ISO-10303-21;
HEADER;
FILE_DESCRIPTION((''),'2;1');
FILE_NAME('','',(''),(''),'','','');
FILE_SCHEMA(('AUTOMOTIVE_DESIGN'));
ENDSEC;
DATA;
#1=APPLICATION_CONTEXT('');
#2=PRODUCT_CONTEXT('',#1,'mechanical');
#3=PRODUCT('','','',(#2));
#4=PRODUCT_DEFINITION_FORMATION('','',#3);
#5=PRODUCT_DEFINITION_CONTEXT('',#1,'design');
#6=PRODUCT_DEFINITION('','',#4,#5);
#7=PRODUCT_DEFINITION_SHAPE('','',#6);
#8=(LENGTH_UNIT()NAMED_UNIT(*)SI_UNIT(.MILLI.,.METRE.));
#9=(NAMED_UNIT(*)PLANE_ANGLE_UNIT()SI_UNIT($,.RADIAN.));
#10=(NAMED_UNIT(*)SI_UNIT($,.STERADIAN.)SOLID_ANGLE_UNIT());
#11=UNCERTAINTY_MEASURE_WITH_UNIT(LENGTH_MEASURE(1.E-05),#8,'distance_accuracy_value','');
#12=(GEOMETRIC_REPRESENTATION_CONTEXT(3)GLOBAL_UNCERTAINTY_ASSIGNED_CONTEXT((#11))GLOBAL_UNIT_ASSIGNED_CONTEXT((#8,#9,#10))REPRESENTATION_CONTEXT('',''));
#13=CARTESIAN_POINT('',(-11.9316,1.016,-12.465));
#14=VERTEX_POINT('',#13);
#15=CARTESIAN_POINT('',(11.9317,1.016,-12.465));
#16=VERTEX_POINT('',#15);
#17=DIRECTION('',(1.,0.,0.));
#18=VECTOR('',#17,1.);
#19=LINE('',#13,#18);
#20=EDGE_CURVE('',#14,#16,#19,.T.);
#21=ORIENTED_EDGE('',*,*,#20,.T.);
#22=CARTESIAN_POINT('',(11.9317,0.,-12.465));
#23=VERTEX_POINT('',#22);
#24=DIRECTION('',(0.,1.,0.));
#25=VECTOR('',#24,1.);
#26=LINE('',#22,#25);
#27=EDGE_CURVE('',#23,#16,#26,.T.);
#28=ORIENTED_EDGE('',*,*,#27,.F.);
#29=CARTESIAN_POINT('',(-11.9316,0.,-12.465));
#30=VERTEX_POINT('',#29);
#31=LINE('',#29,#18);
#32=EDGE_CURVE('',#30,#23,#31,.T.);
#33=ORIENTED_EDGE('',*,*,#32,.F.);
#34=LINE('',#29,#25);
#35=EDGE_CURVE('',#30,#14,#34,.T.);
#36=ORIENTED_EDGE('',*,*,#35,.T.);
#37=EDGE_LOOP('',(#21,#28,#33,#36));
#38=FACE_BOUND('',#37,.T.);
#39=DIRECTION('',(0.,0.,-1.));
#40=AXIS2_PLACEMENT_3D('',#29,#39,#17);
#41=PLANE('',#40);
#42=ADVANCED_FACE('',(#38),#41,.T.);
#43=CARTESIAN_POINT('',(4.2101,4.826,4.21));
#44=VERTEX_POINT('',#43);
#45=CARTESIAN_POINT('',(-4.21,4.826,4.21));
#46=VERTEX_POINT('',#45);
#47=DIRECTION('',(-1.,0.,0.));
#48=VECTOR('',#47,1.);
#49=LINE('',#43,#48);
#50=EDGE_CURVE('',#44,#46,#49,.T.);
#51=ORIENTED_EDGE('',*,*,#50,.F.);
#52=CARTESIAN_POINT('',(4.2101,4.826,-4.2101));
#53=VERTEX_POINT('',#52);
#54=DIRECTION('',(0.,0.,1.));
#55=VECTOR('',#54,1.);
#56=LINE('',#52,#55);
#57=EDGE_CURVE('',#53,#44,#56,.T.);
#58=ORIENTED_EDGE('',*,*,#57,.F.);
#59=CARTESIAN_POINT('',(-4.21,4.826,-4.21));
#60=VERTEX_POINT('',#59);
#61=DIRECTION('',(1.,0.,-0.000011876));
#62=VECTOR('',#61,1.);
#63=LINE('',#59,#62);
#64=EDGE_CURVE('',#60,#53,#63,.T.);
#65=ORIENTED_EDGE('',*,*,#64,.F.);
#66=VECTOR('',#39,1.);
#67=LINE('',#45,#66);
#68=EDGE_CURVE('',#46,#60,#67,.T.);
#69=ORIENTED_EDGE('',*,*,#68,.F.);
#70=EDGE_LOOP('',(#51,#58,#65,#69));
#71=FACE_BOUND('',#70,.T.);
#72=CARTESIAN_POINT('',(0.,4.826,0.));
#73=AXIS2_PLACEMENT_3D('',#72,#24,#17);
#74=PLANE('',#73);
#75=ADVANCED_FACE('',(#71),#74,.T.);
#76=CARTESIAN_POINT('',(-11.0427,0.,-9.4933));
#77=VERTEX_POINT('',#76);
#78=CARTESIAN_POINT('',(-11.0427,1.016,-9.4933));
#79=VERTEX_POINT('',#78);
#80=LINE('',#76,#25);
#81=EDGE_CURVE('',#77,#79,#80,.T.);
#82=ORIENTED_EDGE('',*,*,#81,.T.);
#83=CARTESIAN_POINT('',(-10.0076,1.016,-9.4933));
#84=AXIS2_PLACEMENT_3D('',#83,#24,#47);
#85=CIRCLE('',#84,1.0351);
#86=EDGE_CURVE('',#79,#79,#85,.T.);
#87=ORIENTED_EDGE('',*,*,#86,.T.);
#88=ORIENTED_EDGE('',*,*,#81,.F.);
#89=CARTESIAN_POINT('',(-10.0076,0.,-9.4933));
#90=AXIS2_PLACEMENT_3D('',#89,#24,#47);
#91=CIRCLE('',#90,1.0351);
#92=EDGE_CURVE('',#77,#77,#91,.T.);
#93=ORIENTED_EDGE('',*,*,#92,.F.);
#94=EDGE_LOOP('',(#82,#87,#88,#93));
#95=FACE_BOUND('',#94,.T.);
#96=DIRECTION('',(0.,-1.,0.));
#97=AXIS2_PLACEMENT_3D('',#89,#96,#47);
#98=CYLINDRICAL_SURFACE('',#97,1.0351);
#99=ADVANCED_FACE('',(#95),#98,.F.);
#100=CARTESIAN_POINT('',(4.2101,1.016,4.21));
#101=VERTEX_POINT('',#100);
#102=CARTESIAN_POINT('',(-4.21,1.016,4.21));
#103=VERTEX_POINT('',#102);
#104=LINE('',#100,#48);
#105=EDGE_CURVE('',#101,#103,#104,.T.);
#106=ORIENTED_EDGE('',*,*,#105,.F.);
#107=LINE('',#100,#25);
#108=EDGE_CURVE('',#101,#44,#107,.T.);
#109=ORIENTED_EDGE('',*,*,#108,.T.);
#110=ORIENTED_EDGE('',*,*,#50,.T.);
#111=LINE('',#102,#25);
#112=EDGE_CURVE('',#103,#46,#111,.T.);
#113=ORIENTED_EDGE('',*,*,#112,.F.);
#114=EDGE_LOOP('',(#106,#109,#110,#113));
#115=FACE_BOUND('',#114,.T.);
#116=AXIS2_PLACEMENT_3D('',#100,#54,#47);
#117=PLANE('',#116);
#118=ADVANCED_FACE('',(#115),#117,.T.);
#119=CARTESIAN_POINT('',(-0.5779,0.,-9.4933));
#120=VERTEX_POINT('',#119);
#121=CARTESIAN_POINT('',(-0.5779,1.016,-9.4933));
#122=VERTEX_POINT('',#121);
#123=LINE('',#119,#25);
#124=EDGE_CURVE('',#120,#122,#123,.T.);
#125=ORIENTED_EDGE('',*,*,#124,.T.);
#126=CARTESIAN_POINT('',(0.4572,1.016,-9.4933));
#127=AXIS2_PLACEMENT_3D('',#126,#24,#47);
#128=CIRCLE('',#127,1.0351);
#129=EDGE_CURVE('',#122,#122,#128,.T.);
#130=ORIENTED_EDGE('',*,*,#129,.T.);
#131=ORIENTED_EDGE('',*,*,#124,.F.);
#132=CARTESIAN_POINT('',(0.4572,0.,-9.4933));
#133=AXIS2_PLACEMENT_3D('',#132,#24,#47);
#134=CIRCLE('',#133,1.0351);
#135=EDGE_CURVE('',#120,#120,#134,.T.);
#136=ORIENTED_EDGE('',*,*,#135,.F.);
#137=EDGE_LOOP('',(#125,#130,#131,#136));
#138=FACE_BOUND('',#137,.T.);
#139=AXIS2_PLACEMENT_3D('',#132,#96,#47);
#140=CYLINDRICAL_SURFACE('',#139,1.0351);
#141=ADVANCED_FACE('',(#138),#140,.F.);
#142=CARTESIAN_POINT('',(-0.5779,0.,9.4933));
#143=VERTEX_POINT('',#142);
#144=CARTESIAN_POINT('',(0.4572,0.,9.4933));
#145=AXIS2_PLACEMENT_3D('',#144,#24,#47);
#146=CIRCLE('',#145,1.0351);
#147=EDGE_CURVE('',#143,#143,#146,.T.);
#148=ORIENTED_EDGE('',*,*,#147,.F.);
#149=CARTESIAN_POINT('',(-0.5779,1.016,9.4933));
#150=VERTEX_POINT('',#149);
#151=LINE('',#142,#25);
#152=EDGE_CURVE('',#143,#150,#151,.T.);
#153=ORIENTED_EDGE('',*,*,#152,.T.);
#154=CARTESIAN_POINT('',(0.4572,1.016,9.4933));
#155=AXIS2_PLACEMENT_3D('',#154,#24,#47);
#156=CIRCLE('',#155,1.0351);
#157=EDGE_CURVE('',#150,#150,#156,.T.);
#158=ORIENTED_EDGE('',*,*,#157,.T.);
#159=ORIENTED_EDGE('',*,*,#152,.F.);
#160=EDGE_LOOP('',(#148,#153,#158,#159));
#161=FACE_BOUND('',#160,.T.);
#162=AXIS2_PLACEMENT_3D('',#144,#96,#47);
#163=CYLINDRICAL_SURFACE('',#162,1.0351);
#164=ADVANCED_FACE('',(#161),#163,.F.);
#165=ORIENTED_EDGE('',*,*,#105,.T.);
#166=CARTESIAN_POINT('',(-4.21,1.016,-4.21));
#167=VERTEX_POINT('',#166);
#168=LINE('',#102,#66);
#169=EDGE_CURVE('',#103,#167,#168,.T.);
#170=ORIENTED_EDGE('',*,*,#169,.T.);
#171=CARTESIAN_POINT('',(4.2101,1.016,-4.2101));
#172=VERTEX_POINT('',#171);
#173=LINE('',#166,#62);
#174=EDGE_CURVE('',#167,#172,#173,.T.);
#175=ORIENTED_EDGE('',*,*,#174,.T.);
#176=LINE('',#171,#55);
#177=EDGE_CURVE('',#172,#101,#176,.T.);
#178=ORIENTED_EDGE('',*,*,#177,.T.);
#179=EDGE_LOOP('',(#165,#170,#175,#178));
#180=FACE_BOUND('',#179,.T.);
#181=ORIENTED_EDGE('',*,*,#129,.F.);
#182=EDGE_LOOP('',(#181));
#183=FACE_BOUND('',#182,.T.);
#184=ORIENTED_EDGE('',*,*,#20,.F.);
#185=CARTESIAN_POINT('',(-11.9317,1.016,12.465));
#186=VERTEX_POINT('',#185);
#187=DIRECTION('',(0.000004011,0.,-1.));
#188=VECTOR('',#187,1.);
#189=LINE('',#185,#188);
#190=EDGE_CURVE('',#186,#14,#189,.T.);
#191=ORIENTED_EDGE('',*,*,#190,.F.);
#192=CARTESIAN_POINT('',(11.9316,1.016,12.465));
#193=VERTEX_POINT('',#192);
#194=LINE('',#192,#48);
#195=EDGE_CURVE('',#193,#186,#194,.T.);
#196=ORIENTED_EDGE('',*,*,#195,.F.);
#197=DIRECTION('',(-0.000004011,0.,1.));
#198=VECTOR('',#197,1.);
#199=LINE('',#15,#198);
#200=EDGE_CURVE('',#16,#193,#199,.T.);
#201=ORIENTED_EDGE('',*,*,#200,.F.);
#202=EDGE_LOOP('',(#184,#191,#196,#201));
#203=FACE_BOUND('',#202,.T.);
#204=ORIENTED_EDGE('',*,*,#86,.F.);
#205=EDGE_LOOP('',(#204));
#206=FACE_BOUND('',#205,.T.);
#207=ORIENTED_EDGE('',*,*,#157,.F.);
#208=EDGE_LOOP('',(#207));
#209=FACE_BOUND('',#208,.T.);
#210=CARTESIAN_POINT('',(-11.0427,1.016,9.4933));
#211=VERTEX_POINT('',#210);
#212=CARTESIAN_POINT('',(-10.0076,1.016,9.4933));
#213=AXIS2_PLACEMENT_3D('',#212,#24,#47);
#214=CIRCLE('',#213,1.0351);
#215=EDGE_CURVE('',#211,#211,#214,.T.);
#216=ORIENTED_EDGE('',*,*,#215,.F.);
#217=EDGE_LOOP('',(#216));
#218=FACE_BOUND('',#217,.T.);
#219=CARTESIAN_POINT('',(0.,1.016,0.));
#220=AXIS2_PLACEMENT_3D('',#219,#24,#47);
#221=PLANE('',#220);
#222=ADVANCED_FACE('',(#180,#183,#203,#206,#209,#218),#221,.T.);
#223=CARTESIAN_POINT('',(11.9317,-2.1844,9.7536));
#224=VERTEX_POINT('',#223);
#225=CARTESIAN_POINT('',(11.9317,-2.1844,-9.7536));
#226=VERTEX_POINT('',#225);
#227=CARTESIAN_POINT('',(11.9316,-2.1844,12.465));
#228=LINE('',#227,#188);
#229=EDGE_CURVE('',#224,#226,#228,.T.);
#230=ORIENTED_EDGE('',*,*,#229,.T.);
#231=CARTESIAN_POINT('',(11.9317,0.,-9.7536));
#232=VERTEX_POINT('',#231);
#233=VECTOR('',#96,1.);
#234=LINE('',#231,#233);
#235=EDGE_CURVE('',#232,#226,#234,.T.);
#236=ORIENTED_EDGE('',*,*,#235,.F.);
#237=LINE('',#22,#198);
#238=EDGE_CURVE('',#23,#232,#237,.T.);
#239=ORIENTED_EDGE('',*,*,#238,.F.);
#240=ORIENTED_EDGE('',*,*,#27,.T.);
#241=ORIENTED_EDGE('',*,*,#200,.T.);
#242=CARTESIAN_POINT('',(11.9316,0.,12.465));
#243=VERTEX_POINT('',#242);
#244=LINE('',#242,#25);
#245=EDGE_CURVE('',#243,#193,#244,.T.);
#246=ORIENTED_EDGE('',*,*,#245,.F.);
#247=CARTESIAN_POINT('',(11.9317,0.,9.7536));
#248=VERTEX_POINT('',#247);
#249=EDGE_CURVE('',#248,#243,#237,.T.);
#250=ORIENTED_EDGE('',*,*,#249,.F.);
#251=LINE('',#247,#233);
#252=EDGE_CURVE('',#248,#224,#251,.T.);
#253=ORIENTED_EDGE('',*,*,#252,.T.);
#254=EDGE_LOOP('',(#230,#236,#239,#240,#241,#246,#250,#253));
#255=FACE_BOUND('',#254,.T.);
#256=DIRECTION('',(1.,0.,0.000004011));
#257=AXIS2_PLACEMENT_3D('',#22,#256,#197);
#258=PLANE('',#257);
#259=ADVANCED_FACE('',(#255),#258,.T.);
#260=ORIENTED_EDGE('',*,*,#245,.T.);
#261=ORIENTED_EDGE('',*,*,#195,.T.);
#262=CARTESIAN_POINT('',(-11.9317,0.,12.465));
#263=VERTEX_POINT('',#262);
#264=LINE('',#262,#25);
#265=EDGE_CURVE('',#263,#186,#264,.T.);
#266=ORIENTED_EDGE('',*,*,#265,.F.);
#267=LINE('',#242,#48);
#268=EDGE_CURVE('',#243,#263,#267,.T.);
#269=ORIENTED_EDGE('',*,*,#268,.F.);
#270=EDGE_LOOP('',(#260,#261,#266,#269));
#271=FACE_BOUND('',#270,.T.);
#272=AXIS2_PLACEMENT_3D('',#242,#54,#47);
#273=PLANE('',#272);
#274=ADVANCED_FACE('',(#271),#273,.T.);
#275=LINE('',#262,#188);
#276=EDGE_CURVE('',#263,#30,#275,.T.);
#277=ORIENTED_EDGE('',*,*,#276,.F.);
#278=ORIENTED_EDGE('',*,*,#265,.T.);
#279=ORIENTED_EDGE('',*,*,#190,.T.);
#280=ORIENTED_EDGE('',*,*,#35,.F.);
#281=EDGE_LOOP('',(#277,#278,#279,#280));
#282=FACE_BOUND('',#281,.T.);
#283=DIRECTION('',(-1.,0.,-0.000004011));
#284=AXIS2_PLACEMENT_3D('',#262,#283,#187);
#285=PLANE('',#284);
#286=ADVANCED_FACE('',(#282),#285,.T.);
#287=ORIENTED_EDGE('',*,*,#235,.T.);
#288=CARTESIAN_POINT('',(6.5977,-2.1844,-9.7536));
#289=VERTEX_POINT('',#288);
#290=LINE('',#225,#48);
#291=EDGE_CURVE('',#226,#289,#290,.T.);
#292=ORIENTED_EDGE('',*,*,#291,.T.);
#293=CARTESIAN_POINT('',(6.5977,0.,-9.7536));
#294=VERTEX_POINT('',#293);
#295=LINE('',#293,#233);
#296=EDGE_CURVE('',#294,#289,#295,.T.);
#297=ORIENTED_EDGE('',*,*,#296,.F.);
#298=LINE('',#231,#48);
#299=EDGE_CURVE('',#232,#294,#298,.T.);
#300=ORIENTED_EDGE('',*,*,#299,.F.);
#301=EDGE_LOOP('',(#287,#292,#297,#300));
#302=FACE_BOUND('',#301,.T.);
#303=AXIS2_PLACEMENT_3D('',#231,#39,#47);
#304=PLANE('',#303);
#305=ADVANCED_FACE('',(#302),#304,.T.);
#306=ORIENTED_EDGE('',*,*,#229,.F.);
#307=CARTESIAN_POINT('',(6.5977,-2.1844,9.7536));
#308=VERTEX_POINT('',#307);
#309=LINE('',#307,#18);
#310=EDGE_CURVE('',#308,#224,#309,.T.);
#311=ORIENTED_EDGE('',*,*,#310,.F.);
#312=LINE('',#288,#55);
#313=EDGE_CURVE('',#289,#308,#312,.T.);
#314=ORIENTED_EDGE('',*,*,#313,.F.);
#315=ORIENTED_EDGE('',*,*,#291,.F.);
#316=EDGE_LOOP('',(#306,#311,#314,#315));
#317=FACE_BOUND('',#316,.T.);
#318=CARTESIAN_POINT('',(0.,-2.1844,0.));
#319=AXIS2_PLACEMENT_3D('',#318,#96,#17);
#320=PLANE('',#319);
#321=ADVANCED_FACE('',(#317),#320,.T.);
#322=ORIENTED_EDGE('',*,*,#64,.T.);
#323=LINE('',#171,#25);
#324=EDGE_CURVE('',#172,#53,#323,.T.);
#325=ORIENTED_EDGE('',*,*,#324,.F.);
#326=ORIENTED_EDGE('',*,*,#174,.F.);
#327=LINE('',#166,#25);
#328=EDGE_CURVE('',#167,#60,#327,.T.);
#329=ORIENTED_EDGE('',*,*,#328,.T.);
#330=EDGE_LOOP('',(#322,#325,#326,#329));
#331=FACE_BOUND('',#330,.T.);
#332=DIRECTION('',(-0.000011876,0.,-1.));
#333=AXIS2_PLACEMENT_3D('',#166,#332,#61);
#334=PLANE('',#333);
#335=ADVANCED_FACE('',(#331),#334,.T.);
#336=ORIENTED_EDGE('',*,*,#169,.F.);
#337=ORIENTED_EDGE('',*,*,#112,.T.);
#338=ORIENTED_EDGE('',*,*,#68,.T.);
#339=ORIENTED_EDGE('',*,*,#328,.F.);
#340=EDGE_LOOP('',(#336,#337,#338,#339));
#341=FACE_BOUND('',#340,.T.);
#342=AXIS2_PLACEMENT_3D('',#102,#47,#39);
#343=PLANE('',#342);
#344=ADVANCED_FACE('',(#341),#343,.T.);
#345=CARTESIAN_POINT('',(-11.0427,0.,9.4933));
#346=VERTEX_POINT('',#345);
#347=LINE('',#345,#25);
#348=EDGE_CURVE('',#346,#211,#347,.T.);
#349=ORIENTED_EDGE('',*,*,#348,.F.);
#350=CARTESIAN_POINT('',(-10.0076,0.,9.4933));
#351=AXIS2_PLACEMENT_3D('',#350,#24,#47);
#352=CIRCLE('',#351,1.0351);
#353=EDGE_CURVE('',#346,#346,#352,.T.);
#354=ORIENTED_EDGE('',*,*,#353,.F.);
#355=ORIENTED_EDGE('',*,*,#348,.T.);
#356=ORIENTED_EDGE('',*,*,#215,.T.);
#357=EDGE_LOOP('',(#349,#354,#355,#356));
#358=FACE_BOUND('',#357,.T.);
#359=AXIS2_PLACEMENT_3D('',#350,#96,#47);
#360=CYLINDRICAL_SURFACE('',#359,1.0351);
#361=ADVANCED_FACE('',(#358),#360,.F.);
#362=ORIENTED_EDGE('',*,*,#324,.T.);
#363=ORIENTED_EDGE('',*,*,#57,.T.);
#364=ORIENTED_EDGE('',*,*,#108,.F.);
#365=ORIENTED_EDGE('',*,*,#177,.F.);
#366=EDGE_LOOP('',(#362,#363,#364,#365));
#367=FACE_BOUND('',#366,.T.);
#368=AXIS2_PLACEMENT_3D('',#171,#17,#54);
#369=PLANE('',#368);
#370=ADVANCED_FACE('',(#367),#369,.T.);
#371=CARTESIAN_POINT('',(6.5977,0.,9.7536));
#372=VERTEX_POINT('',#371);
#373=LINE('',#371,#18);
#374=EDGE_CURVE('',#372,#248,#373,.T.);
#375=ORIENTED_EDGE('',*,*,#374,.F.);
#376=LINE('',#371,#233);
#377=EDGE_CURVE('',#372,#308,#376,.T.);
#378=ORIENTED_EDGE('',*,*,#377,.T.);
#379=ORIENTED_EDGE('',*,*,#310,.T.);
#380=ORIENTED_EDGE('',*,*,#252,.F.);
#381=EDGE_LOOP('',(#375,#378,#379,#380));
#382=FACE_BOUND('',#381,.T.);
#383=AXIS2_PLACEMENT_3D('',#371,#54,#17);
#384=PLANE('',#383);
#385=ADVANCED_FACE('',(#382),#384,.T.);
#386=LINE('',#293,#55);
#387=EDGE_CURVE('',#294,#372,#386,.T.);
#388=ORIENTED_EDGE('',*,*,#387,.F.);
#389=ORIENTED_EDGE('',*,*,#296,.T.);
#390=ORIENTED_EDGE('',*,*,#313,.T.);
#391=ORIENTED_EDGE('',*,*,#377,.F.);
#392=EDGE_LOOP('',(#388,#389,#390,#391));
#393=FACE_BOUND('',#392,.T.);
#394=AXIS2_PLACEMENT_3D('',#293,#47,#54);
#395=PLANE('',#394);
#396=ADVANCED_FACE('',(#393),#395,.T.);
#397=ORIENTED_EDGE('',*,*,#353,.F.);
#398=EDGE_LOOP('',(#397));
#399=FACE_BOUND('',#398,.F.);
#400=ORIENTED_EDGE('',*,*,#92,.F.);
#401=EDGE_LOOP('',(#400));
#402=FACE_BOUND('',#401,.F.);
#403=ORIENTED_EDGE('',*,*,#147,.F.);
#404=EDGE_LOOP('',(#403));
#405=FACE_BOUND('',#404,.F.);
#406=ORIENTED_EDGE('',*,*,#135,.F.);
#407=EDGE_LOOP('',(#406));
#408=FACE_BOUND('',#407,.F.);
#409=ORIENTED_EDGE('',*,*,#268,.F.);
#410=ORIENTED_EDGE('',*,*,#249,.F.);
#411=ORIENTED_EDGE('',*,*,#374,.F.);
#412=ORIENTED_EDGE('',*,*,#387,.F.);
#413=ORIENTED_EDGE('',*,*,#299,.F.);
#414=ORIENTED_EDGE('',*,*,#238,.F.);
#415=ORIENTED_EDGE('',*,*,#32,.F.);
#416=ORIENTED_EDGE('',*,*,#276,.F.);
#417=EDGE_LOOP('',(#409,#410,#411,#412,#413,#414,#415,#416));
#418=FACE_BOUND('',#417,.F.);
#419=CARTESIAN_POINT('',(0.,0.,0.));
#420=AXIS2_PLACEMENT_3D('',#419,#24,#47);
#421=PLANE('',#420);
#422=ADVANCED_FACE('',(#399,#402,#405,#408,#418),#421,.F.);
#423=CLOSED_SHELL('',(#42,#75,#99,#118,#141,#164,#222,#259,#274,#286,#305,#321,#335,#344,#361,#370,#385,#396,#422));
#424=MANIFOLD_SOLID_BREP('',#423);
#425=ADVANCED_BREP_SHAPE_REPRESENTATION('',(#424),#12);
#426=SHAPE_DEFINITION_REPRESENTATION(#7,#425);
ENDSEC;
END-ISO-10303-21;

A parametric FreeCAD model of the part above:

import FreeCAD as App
import Part
import Sketcher

V = App.Vector
Q = App.Units.Quantity

doc = App.newDocument("Part")
body = doc.addObject("PartDesign::Body", "Body")

sketch1 = body.newObject("Sketcher::SketchObject", "Sketch")
sketch1.AttachmentSupport = (doc.getObject("XZ_Plane"), [""])
sketch1.MapMode = "FlatFace"
sketch1.addGeometry(Part.LineSegment(V(-11.9, 12.5, 0), V(11.9, 12.5, 0)), False)
sketch1.addGeometry(Part.LineSegment(V(11.9, 12.5, 0), V(11.9, -12.5, 0)), False)
sketch1.addGeometry(Part.LineSegment(V(11.9, -12.5, 0), V(-11.9, -12.5, 0)), False)
sketch1.addGeometry(Part.LineSegment(V(-11.9, -12.5, 0), V(-11.9, 12.5, 0)), False)
sketch1.addGeometry(Part.Circle(V(0.5, -9.5, 0), V(0, 0, 1), 1), False)
sketch1.addGeometry(Part.Circle(V(-10, -9.5, 0), V(0, 0, 1), 1), False)
sketch1.addGeometry(Part.Circle(V(0.5, 9.5, 0), V(0, 0, 1), 1), False)
sketch1.addGeometry(Part.Circle(V(-10, 9.5, 0), V(0, 0, 1), 1), False)
sketch1.addConstraint(Sketcher.Constraint("Coincident", 0, 2, 1, 1))
sketch1.addConstraint(Sketcher.Constraint("Coincident", 1, 2, 2, 1))
sketch1.addConstraint(Sketcher.Constraint("Coincident", 2, 2, 3, 1))
sketch1.addConstraint(Sketcher.Constraint("Coincident", 3, 2, 0, 1))
sketch1.addConstraint(Sketcher.Constraint("Horizontal", 0))
sketch1.addConstraint(Sketcher.Constraint("Vertical", 1))
sketch1.addConstraint(Sketcher.Constraint("Horizontal", 2))
sketch1.addConstraint(Sketcher.Constraint("Vertical", 3))
sketch1.addConstraint(Sketcher.Constraint("Equal", 4, 5))
sketch1.addConstraint(Sketcher.Constraint("Equal", 5, 6))
sketch1.addConstraint(Sketcher.Constraint("Equal", 6, 7))
sketch1.addConstraint(Sketcher.Constraint("Symmetric", 0, 2, 2, 2, -1, 1))
sketch1.addConstraint(Sketcher.Constraint("Symmetric", 4, 3, 6, 3, -1))
sketch1.addConstraint(Sketcher.Constraint("Symmetric", 5, 3, 7, 3, -1))
sketch1.addConstraint(Sketcher.Constraint("Horizontal", 4, 3, 5, 3))
sketch1.addConstraint(Sketcher.Constraint("Diameter", 4, Q("0.0815 in")))
sketch1.addConstraint(Sketcher.Constraint("DistanceX", 0, 1, 0, 2, Q("0.9395 in")))
sketch1.addConstraint(Sketcher.Constraint("DistanceY", 1, 2, 1, 1, Q("0.9815 in")))
sketch1.addConstraint(Sketcher.Constraint("DistanceY", 4, 3, 6, 3, Q("0.7475 in")))
sketch1.addConstraint(Sketcher.Constraint("DistanceX", 2, 2, 5, 3, 1.924))
sketch1.addConstraint(Sketcher.Constraint("DistanceX", -1, 1, 4, 3, Q("0.018 in")))
pad1 = body.newObject("PartDesign::Pad", "Pad")
pad1.Profile = sketch1
pad1.Length = Q("0.04 in")
pad1.Reversed = True

sketch2 = body.newObject("Sketcher::SketchObject", "Sketch001")
sketch2.AttachmentSupport = (doc.getObject("XZ_Plane"), [""])
sketch2.MapMode = "FlatFace"
sketch2.AttachmentOffset = App.Placement(V(0, 0, -0.04 * 25.4), App.Rotation())
sketch2.addGeometry(Part.LineSegment(V(-4, 4, 0), V(4, 4, 0)), False)
sketch2.addGeometry(Part.LineSegment(V(4, 4, 0), V(4, -4, 0)), False)
sketch2.addGeometry(Part.LineSegment(V(4, -4, 0), V(-4, -4, 0)), False)
sketch2.addGeometry(Part.LineSegment(V(-4, -4, 0), V(-4, 4, 0)), False)
sketch2.addConstraint(Sketcher.Constraint("Coincident", 0, 2, 1, 1))
sketch2.addConstraint(Sketcher.Constraint("Coincident", 1, 2, 2, 1))
sketch2.addConstraint(Sketcher.Constraint("Coincident", 2, 2, 3, 1))
sketch2.addConstraint(Sketcher.Constraint("Coincident", 3, 2, 0, 1))
sketch2.addConstraint(Sketcher.Constraint("Horizontal", 0))
sketch2.addConstraint(Sketcher.Constraint("Vertical", 1))
sketch2.addConstraint(Sketcher.Constraint("Horizontal", 2))
sketch2.addConstraint(Sketcher.Constraint("Vertical", 3))
sketch2.addConstraint(Sketcher.Constraint("Symmetric", 0, 2, 2, 2, -1, 1))
sketch2.addConstraint(Sketcher.Constraint("Equal", 2, 1))
sketch2.addConstraint(Sketcher.Constraint("DistanceX", 0, 1, 0, 2, Q("0.3315 in")))
pad2 = body.newObject("PartDesign::Pad", "Pad001")
pad2.Profile = sketch2
pad2.Length = Q("0.15 in")
pad2.Reversed = True

sketch3 = body.newObject("Sketcher::SketchObject", "Sketch002")
sketch3.AttachmentSupport = (doc.getObject("XZ_Plane"), [""])
sketch3.MapMode = "FlatFace"
sketch3.addGeometry(Part.LineSegment(V(12, -10, 0), V(12, 10, 0)), False)
sketch3.addGeometry(Part.LineSegment(V(12, 10, 0), V(7, 10, 0)), False)
sketch3.addGeometry(Part.LineSegment(V(7, 10, 0), V(7, -10, 0)), False)
sketch3.addGeometry(Part.LineSegment(V(7, -10, 0), V(12, -10, 0)), False)
sketch3.addConstraint(Sketcher.Constraint("Coincident", 0, 2, 1, 1))
sketch3.addConstraint(Sketcher.Constraint("Coincident", 1, 2, 2, 1))
sketch3.addConstraint(Sketcher.Constraint("Coincident", 2, 2, 3, 1))
sketch3.addConstraint(Sketcher.Constraint("Coincident", 3, 2, 0, 1))
sketch3.addConstraint(Sketcher.Constraint("Vertical", 0))
sketch3.addConstraint(Sketcher.Constraint("Horizontal", 1))
sketch3.addConstraint(Sketcher.Constraint("Vertical", 2))
sketch3.addConstraint(Sketcher.Constraint("Horizontal", 3))
sketch3.addConstraint(Sketcher.Constraint("DistanceX", 1, 2, 1, 1, Q("0.21 in")))
sketch3.addConstraint(Sketcher.Constraint("DistanceY", 0, 1, 0, 2, Q("0.768 in")))
sketch3.addConstraint(Sketcher.Constraint("DistanceY", -1, 1, 0, 2, Q("0.384 in")))
sketch3.addConstraint(Sketcher.Constraint("DistanceX", -1, 1, 0, 2, 11.9316))
pad3 = body.newObject("PartDesign::Pad", "Pad002")
pad3.Profile = sketch3
pad3.Length = Q("0.086 in")

doc.recompute()
